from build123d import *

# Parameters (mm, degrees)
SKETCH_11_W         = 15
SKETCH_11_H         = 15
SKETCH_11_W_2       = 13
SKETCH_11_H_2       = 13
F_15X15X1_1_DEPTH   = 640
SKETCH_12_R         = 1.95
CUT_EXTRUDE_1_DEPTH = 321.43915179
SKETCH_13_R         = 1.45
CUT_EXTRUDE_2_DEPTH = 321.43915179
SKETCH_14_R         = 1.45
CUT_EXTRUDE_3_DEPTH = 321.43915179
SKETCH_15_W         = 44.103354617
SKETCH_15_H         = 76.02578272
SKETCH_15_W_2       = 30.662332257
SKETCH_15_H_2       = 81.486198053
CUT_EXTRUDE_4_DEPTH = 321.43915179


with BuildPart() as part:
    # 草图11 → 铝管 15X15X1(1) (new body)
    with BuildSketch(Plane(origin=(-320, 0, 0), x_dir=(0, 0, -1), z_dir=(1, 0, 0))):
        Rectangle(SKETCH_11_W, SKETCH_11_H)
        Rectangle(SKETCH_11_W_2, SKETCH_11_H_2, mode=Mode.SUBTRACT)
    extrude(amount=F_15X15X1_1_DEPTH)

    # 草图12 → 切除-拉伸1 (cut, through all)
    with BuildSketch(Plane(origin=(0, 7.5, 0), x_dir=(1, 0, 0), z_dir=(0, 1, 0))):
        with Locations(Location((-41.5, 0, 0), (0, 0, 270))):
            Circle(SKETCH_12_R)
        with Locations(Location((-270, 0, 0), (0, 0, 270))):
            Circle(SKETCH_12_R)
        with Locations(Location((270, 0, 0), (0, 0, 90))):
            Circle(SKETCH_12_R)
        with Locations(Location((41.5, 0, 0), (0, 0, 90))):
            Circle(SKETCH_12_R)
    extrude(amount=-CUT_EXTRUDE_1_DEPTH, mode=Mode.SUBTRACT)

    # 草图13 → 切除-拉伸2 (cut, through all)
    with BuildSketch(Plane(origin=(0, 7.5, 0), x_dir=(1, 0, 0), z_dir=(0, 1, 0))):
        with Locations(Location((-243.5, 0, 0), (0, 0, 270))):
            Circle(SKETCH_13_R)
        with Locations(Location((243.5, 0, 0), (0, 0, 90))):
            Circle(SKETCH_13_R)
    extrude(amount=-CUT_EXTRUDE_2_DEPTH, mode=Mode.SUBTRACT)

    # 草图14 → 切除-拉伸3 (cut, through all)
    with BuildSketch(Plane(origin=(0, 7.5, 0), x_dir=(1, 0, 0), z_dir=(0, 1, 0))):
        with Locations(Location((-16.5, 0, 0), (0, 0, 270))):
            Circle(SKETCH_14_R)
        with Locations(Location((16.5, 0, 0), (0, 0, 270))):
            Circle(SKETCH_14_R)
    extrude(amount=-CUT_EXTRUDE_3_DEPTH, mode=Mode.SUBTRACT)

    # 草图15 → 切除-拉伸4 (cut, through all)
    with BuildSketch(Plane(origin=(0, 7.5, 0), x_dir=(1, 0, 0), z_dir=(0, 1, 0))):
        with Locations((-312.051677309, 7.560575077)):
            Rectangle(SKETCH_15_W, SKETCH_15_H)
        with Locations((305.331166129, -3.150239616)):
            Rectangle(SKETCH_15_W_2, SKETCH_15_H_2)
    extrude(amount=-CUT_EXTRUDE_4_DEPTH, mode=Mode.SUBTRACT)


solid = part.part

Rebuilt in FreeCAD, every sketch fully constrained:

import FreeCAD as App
import Part
import Sketcher
Q = App.Units.Quantity


def add_polygon(sketch, points):
    """Adds a closed chain of lines whose ends are joined by coincident constraints."""
    first, n = sketch.GeometryCount, len(points)
    for a, b in zip(points, points[1:] + points[:1]):
        sketch.addGeometry(Part.LineSegment(App.Vector(*a, 0), App.Vector(*b, 0)), False)
    for i in range(n):
        sketch.addConstraint(Sketcher.Constraint("Coincident", first + i, 2, first + (i + 1) % n, 1))

doc = App.newDocument("Part")
body = doc.addObject("PartDesign::Body", "Body")

# Sketch on YZ plane
sketch1 = doc.addObject("Sketcher::SketchObject", "Sketch")
body.addObject(sketch1)
sketch1.AttachmentSupport = (doc.YZ_Plane, [""])
sketch1.MapMode = "FlatFace"
sketch1.AttachmentOffset = App.Placement(App.Vector(0, 0, -320), App.Rotation())
add_polygon(sketch1, [(8, 8), (-8, 8), (-8, -8), (8, -8)])  # lines 0-3
add_polygon(sketch1, [(-6, -6), (-6, 6), (6, 6), (6, -6)])  # lines 4-7
sketch1.addConstraint([
    Sketcher.Constraint("Horizontal", 0),
    Sketcher.Constraint("Vertical", 1),
    Sketcher.Constraint("Horizontal", 2),
    Sketcher.Constraint("Vertical", 3),
    Sketcher.Constraint("Vertical", 4),
    Sketcher.Constraint("Horizontal", 5),
    Sketcher.Constraint("Vertical", 6),
    Sketcher.Constraint("Horizontal", 7),
    Sketcher.Constraint("Symmetric", 0, 2, 2, 2, -1, 1),
    Sketcher.Constraint("Symmetric", 4, 2, 6, 2, -1, 1),
    Sketcher.Constraint("Equal", 2, 1),
    Sketcher.Constraint("Equal", 7, 4),
    Sketcher.Constraint("DistanceX", 0, 2, 0, 1, Q("15 mm")),
    Sketcher.Constraint("DistanceX", 5, 1, 5, 2, Q("13 mm")),
])
pad1 = doc.addObject("PartDesign::Pad", "Pad")
body.addObject(pad1)
pad1.Profile = sketch1
pad1.Length = 640

# Sketch on XZ plane
sketch2 = doc.addObject("Sketcher::SketchObject", "Sketch001")
body.addObject(sketch2)
sketch2.AttachmentSupport = (doc.XZ_Plane, [""])
sketch2.MapMode = "FlatFace"
sketch2.AttachmentOffset = App.Placement(App.Vector(0, 0, -7.5), App.Rotation())
sketch2.addGeometry([
    Part.Circle(App.Vector(-41.5, 0, 0), App.Vector(0, 0, 1), 1.9),
    Part.Circle(App.Vector(-270, 0, 0), App.Vector(0, 0, 1), 1.9),
    Part.Circle(App.Vector(270, 0, 0), App.Vector(0, 0, 1), 1.9),
    Part.Circle(App.Vector(41.5, 0, 0), App.Vector(0, 0, 1), 1.9),
], False)
sketch2.addConstraint([
    Sketcher.Constraint("Equal", 0, 1),
    Sketcher.Constraint("Equal", 1, 2),
    Sketcher.Constraint("Equal", 2, 3),
    Sketcher.Constraint("Symmetric", 1, 3, 2, 3, -1, 1),
    Sketcher.Constraint("Symmetric", 0, 3, 3, 3, -1, 1),
    Sketcher.Constraint("PointOnObject", 0, 3, -1),
    Sketcher.Constraint("PointOnObject", 1, 3, -1),
    Sketcher.Constraint("Diameter", 0, Q("3.9 mm")),
    Sketcher.Constraint("DistanceX", 1, 3, -1, 1, Q("270 mm")),
    Sketcher.Constraint("DistanceX", 0, 3, 3, 3, Q("83 mm")),
])
pocket1 = doc.addObject("PartDesign::Pocket", "Pocket")
body.addObject(pocket1)
pocket1.Profile = sketch2
pocket1.Type = "ThroughAll"
pocket1.Reversed = True

# Sketch on XZ plane
sketch3 = doc.addObject("Sketcher::SketchObject", "Sketch002")
body.addObject(sketch3)
sketch3.AttachmentSupport = (doc.XZ_Plane, [""])
sketch3.MapMode = "FlatFace"
sketch3.AttachmentOffset = App.Placement(App.Vector(0, 0, -7.5), App.Rotation())
sketch3.addGeometry([
    Part.Circle(App.Vector(-243.5, 0, 0), App.Vector(0, 0, 1), 1.4),
    Part.Circle(App.Vector(243.5, 0, 0), App.Vector(0, 0, 1), 1.4),
], False)
sketch3.addConstraint([
    Sketcher.Constraint("Equal", 0, 1),
    Sketcher.Constraint("Symmetric", 0, 3, 1, 3, -1, 1),
    Sketcher.Constraint("PointOnObject", 0, 3, -1),
    Sketcher.Constraint("Diameter", 0, Q("2.9 mm")),
    Sketcher.Constraint("DistanceX", 0, 3, 1, 3, Q("487 mm")),
])
pocket2 = doc.addObject("PartDesign::Pocket", "Pocket001")
body.addObject(pocket2)
pocket2.Profile = sketch3
pocket2.Type = "ThroughAll"
pocket2.Reversed = True

# Sketch on XZ plane
sketch4 = doc.addObject("Sketcher::SketchObject", "Sketch003")
body.addObject(sketch4)
sketch4.AttachmentSupport = (doc.XZ_Plane, [""])
sketch4.MapMode = "FlatFace"
sketch4.AttachmentOffset = App.Placement(App.Vector(0, 0, -7.5), App.Rotation())
sketch4.addGeometry([
    Part.Circle(App.Vector(-16.5, 0, 0), App.Vector(0, 0, 1), 1.4),
    Part.Circle(App.Vector(16.5, 0, 0), App.Vector(0, 0, 1), 1.4),
], False)
sketch4.addConstraint([
    Sketcher.Constraint("Equal", 0, 1),
    Sketcher.Constraint("Symmetric", 0, 3, 1, 3, -1, 1),
    Sketcher.Constraint("PointOnObject", 0, 3, -1),
    Sketcher.Constraint("Diameter", 0, Q("2.9 mm")),
    Sketcher.Constraint("DistanceX", 0, 3, 1, 3, Q("33 mm")),
])
pocket3 = doc.addObject("PartDesign::Pocket", "Pocket002")
body.addObject(pocket3)
pocket3.Profile = sketch4
pocket3.Type = "ThroughAll"
pocket3.Reversed = True

# Sketch on XZ plane
sketch5 = doc.addObject("Sketcher::SketchObject", "Sketch004")
body.addObject(sketch5)
sketch5.AttachmentSupport = (doc.XZ_Plane, [""])
sketch5.MapMode = "FlatFace"
sketch5.AttachmentOffset = App.Placement(App.Vector(0, 0, -7.5), App.Rotation())
add_polygon(sketch5, [(-334, -46), (-334, 30), (-290, 30), (-290, -46)])  # lines 0-3
add_polygon(sketch5, [(290, -38), (290, 44), (321, 44), (321, -38)])  # lines 4-7
sketch5.addConstraint([
    Sketcher.Constraint("Vertical", 0),
    Sketcher.Constraint("Horizontal", 1),
    Sketcher.Constraint("Vertical", 2),
    Sketcher.Constraint("Horizontal", 3),
    Sketcher.Constraint("Vertical", 4),
    Sketcher.Constraint("Horizontal", 5),
    Sketcher.Constraint("Vertical", 6),
    Sketcher.Constraint("Horizontal", 7),
    Sketcher.Constraint("DistanceX", 1, 2, -1, 1, Q("290 mm")),
    Sketcher.Constraint("DistanceX", -1, 1, 4, 2, Q("290 mm")),
    Sketcher.Constraint("DistanceY", 4, 1, 4, 2, Q("81.486198 mm")),
    Sketcher.Constraint("DistanceX", 1, 1, 1, 2, Q("44.103355 mm")),
    Sketcher.Constraint("DistanceX", 5, 1, 5, 2, Q("30.662332 mm")),
    Sketcher.Constraint("DistanceY", 0, 1, 0, 2, Q("76.025783 mm")),
    Sketcher.Constraint("DistanceY", -1, 1, 4, 2, Q("43.893339 mm")),
    Sketcher.Constraint("DistanceY", -1, 1, 0, 2, Q("30.452316 mm")),
])
pocket4 = doc.addObject("PartDesign::Pocket", "Pocket003")
body.addObject(pocket4)
pocket4.Profile = sketch5
pocket4.Type = "ThroughAll"
pocket4.Reversed = True

doc.recompute()
